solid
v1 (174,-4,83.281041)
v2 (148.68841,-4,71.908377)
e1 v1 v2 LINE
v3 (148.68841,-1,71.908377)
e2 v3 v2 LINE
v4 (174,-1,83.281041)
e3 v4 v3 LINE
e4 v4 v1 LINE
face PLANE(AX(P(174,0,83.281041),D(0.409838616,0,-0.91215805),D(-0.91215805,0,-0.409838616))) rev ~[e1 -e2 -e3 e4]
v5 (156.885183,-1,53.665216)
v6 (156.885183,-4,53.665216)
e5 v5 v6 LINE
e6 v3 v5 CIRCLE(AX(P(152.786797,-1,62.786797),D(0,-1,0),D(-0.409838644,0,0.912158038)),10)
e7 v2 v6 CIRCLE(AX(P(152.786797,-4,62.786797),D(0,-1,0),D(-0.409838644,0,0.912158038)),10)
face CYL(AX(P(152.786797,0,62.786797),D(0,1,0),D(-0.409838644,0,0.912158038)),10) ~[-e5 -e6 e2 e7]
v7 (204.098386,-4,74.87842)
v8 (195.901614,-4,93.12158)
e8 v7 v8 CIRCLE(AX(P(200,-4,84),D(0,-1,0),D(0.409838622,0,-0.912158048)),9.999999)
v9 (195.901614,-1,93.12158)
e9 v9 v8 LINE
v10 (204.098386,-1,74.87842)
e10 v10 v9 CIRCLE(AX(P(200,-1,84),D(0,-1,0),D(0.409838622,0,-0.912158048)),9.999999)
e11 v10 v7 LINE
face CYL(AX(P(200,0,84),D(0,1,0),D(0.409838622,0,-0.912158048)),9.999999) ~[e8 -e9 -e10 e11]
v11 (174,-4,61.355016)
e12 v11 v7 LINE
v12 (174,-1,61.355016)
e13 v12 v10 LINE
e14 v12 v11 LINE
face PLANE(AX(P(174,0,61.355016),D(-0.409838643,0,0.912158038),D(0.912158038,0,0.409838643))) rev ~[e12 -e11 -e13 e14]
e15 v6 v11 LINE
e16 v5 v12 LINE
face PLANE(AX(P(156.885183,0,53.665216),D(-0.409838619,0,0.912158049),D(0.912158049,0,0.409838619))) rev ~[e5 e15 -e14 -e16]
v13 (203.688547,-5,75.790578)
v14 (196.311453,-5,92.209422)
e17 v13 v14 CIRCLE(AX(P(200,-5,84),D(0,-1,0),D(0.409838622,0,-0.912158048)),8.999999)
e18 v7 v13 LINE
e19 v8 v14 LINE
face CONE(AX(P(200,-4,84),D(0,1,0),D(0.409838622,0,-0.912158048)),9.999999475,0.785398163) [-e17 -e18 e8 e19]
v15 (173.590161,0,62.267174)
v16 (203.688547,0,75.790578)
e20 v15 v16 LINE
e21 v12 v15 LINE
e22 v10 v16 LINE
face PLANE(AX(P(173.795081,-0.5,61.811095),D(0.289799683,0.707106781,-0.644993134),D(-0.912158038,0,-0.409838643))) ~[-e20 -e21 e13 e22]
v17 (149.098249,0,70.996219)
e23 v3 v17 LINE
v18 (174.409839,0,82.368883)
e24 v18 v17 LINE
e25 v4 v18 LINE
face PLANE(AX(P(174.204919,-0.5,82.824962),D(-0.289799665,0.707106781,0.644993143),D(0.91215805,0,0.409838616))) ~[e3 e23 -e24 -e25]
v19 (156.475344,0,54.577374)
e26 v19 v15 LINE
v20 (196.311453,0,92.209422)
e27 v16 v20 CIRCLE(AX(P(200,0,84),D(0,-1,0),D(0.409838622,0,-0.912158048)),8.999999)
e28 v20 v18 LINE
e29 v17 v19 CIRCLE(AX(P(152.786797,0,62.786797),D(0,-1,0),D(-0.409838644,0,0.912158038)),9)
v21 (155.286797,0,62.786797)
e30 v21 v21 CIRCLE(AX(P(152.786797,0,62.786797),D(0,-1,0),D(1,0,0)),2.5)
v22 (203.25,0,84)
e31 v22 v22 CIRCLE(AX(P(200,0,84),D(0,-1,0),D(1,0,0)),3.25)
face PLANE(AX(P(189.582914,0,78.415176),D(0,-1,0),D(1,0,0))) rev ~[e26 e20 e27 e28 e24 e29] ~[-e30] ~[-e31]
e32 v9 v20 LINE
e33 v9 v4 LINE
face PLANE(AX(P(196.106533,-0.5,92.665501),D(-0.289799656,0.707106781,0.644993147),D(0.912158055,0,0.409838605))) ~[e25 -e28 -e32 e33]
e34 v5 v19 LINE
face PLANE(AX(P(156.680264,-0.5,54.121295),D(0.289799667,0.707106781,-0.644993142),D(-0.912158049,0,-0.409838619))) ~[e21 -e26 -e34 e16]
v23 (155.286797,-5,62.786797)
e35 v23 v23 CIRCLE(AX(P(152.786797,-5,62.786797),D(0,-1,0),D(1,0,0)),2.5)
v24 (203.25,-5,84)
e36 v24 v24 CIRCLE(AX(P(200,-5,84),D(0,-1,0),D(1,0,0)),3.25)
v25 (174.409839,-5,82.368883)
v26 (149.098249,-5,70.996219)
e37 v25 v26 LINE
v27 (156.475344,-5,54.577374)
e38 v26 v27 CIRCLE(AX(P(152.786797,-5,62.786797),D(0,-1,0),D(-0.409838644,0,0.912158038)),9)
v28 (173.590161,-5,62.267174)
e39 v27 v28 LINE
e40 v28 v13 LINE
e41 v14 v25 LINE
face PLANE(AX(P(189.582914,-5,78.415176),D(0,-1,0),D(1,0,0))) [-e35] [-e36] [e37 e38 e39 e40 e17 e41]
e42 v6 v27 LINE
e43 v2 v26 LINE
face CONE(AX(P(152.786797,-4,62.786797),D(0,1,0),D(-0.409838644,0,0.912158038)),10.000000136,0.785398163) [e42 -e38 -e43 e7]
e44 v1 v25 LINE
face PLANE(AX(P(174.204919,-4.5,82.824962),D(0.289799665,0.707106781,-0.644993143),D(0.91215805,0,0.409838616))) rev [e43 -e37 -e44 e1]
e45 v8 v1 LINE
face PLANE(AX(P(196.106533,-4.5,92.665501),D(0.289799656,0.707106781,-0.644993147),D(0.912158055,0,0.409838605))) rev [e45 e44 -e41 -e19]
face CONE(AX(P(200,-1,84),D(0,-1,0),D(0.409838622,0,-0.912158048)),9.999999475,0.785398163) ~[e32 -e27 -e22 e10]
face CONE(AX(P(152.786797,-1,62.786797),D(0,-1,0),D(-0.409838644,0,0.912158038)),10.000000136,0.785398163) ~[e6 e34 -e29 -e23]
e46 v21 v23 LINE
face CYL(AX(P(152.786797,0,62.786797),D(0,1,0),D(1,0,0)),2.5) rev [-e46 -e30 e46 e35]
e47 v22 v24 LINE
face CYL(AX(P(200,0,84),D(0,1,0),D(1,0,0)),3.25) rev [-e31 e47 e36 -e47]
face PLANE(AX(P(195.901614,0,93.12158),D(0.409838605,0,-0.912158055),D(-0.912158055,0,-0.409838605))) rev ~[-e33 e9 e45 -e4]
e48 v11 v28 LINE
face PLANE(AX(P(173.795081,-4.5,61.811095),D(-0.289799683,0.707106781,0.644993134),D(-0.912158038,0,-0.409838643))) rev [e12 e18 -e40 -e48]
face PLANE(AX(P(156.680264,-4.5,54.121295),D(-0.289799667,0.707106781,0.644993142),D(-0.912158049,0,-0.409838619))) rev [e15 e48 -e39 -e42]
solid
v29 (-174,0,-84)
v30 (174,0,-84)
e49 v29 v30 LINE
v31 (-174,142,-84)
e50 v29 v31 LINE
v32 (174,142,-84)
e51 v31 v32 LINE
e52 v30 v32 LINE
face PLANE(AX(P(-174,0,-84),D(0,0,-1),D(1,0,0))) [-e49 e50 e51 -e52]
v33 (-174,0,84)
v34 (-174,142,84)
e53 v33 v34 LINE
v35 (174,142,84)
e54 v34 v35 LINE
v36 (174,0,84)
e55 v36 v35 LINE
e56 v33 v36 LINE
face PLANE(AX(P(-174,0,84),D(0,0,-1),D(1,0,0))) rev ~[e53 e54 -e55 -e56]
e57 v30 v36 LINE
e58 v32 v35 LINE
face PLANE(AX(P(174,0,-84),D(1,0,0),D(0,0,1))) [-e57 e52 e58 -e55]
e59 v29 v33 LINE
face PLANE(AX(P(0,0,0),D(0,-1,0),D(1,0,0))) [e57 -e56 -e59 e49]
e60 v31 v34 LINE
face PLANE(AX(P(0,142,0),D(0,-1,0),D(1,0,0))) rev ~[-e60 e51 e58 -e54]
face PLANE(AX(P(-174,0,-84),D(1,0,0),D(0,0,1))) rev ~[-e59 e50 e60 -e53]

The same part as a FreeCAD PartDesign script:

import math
import FreeCAD as App
import Part
import Sketcher
from FreeCAD import Vector
Q = App.Units.Quantity


def edges_at(feature, points):
    """Names of the edges that pass closest to the given points."""
    edges = feature.Shape.Edges
    near = lambda p: min(range(len(edges)), key=lambda i: edges[i].distToShape(Part.Vertex(*p))[0])
    return sorted({f"Edge{near(p) + 1}" for p in points})

doc = App.newDocument("Part")
body = doc.addObject("PartDesign::Body", "Body")

# Sketch on XZ plane
sketch1 = body.newObject("Sketcher::SketchObject", "Sketch")
sketch1.AttachmentSupport = (doc.getObject("XZ_Plane"), [""])
sketch1.MapMode = "FlatFace"
sketch1.addGeometry(Part.LineSegment(Vector(-174, 84, 0), Vector(-174, -84, 0)), False)
sketch1.addGeometry(Part.LineSegment(Vector(-174, -84, 0), Vector(174, -84, 0)), False)
sketch1.addGeometry(Part.LineSegment(Vector(174, -84, 0), Vector(174, 84, 0)), False)
sketch1.addGeometry(Part.LineSegment(Vector(174, 84, 0), Vector(-174, 84, 0)), False)
sketch1.addConstraint(Sketcher.Constraint("Coincident", 0, 2, 1, 1))
sketch1.addConstraint(Sketcher.Constraint("Coincident", 1, 2, 2, 1))
sketch1.addConstraint(Sketcher.Constraint("Coincident", 2, 2, 3, 1))
sketch1.addConstraint(Sketcher.Constraint("Coincident", 3, 2, 0, 1))
sketch1.addConstraint(Sketcher.Constraint("Vertical", 0))
sketch1.addConstraint(Sketcher.Constraint("Horizontal", 1))
sketch1.addConstraint(Sketcher.Constraint("Vertical", 2))
sketch1.addConstraint(Sketcher.Constraint("Horizontal", 3))
sketch1.addConstraint(Sketcher.Constraint("Symmetric", 0, 2, 2, 2, -1, 1))
sketch1.addConstraint(Sketcher.Constraint("DistanceX", 1, 1, 1, 2, Q("348 mm")))
sketch1.addConstraint(Sketcher.Constraint("DistanceY", 0, 2, 0, 1, Q("168 mm")))
pad1 = body.newObject("PartDesign::Pad", "Pad")
pad1.Profile = sketch1
pad1.Length = 142
pad1.Reversed = True
body2 = doc.addObject("PartDesign::Body", "Body001")

# Sketch on XZ plane
sketch2 = body2.newObject("Sketcher::SketchObject", "Sketch001")
sketch2.AttachmentSupport = (doc.getObject("XZ_Plane001"), [""])
sketch2.MapMode = "FlatFace"
sketch2.addGeometry(Part.LineSegment(Vector(174, 61.4, 0), Vector(204.1, 74.9, 0)), False)
sketch2.addGeometry(Part.ArcOfCircle(Part.Circle(Vector(200, 84, 0), Vector(0, 0, 1), 10), math.radians(-66), math.radians(114)), False)
sketch2.addGeometry(Part.LineSegment(Vector(195.9, 93.1, 0), Vector(174, 83.3, 0)), False)
sketch2.addGeometry(Part.LineSegment(Vector(174, 83.3, 0), Vector(148.7, 71.9, 0)), False)
sketch2.addGeometry(Part.ArcOfCircle(Part.Circle(Vector(152.8, 62.8, 0), Vector(0, 0, 1), 10), math.radians(114), math.radians(294)), False)
sketch2.addGeometry(Part.LineSegment(Vector(156.9, 53.7, 0), Vector(174, 61.4, 0)), False)
sketch2.addGeometry(Part.Circle(Vector(152.8, 62.8, 0), Vector(0, 0, 1), 2.5), False)
sketch2.addGeometry(Part.Circle(Vector(200, 84, 0), Vector(0, 0, 1), 3.2), False)
sketch2.addConstraint(Sketcher.Constraint("Tangent", 0, 2, 1, 1))
sketch2.addConstraint(Sketcher.Constraint("Tangent", 1, 2, 2, 1))
sketch2.addConstraint(Sketcher.Constraint("Coincident", 2, 2, 3, 1))
sketch2.addConstraint(Sketcher.Constraint("Tangent", 3, 2, 4, 1))
sketch2.addConstraint(Sketcher.Constraint("Tangent", 4, 2, 5, 1))
sketch2.addConstraint(Sketcher.Constraint("Coincident", 5, 2, 0, 1))
sketch2.addConstraint(Sketcher.Constraint("Coincident", 6, 3, 4, 3))
sketch2.addConstraint(Sketcher.Constraint("Coincident", 7, 3, 1, 3))
sketch2.addConstraint(Sketcher.Constraint("Equal", 1, 4))
sketch2.addConstraint(Sketcher.Constraint("Parallel", 0, 2))
sketch2.addConstraint(Sketcher.Constraint("Parallel", 2, 3))
sketch2.addConstraint(Sketcher.Constraint("Vertical", 2, 2, 5, 2))
sketch2.addConstraint(Sketcher.Constraint("Diameter", 6, Q("5 mm")))
sketch2.addConstraint(Sketcher.Constraint("Radius", 1, Q("9.999999 mm")))
sketch2.addConstraint(Sketcher.Constraint("Diameter", 7, Q("6.5 mm")))
sketch2.addConstraint(Sketcher.Constraint("DistanceX", -1, 1, 1, 3, Q("200 mm")))
sketch2.addConstraint(Sketcher.Constraint("DistanceY", -1, 1, 1, 3, Q("84 mm")))
sketch2.addConstraint(Sketcher.Constraint("DistanceX", -1, 1, 2, 2, Q("174 mm")))
sketch2.addConstraint(Sketcher.Constraint("Distance", 0, Q("32.996898 mm")))
sketch2.addConstraint(Sketcher.Constraint("DistanceY", 4, 2, 5, 2, Q("7.6898 mm")))
pad2 = body2.newObject("PartDesign::Pad", "Pad001")
pad2.Profile = sketch2
pad2.Length = 5
doc.recompute()

chamfer = body2.newObject("PartDesign::Chamfer", "Chamfer")
chamfer.Base = (pad2, edges_at(pad2, [(161.344, -5, 77.595), (161.344, 0, 77.595)]))
chamfer.Size = 1

doc.recompute()
